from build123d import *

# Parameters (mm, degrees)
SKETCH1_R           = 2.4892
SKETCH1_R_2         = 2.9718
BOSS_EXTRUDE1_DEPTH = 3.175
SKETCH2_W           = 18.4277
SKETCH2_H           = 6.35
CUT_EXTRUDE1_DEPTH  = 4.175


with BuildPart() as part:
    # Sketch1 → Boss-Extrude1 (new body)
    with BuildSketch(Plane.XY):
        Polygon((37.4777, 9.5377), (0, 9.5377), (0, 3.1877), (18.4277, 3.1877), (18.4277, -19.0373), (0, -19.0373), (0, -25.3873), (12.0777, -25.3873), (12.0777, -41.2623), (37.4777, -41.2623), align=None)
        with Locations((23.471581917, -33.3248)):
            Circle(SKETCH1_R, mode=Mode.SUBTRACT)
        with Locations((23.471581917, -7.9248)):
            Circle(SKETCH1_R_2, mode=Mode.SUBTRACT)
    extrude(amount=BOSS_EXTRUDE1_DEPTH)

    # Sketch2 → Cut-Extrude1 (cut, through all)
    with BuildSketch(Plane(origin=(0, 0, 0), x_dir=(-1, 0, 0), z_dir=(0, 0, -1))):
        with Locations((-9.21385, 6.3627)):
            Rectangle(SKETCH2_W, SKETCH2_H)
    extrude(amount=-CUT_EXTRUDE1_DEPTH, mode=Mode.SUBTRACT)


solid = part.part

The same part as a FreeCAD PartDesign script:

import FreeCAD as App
import Part
import Sketcher

V = App.Vector
Q = App.Units.Quantity

doc = App.newDocument("Part")
body = doc.addObject("PartDesign::Body", "Body")

# Sketch on XY plane
sketch1 = body.newObject("Sketcher::SketchObject", "Sketch")
sketch1.AttachmentSupport = (doc.getObject("XY_Plane"), [""])
sketch1.MapMode = "FlatFace"
sketch1.addGeometry(Part.LineSegment(V(37.5, 9.5, 0), V(0, 9.5, 0)), False)
sketch1.addGeometry(Part.LineSegment(V(0, 9.5, 0), V(0, 3.2, 0)), False)
sketch1.addGeometry(Part.LineSegment(V(0, 3.2, 0), V(18.4, 3.2, 0)), False)
sketch1.addGeometry(Part.LineSegment(V(18.4, 3.2, 0), V(18.4, -19, 0)), False)
sketch1.addGeometry(Part.LineSegment(V(18.4, -19, 0), V(0, -19, 0)), False)
sketch1.addGeometry(Part.LineSegment(V(0, -19, 0), V(0, -25.4, 0)), False)
sketch1.addGeometry(Part.LineSegment(V(0, -25.4, 0), V(12.1, -25.4, 0)), False)
sketch1.addGeometry(Part.LineSegment(V(12.1, -25.4, 0), V(12.1, -41.3, 0)), False)
sketch1.addGeometry(Part.LineSegment(V(12.1, -41.3, 0), V(37.5, -41.3, 0)), False)
sketch1.addGeometry(Part.LineSegment(V(37.5, -41.3, 0), V(37.5, 9.5, 0)), False)
sketch1.addGeometry(Part.Circle(V(23.5, -33.3, 0), V(0, 0, 1), 2.5), False)
sketch1.addGeometry(Part.Circle(V(23.5, -7.9, 0), V(0, 0, 1), 3), False)
sketch1.addConstraint(Sketcher.Constraint("Coincident", 0, 2, 1, 1))
sketch1.addConstraint(Sketcher.Constraint("Coincident", 1, 2, 2, 1))
sketch1.addConstraint(Sketcher.Constraint("Coincident", 2, 2, 3, 1))
sketch1.addConstraint(Sketcher.Constraint("Coincident", 3, 2, 4, 1))
sketch1.addConstraint(Sketcher.Constraint("Coincident", 4, 2, 5, 1))
sketch1.addConstraint(Sketcher.Constraint("Coincident", 5, 2, 6, 1))
sketch1.addConstraint(Sketcher.Constraint("Coincident", 6, 2, 7, 1))
sketch1.addConstraint(Sketcher.Constraint("Coincident", 7, 2, 8, 1))
sketch1.addConstraint(Sketcher.Constraint("Coincident", 8, 2, 9, 1))
sketch1.addConstraint(Sketcher.Constraint("Coincident", 9, 2, 0, 1))
sketch1.addConstraint(Sketcher.Constraint("Horizontal", 0))
sketch1.addConstraint(Sketcher.Constraint("Vertical", 1))
sketch1.addConstraint(Sketcher.Constraint("Horizontal", 2))
sketch1.addConstraint(Sketcher.Constraint("Vertical", 3))
sketch1.addConstraint(Sketcher.Constraint("Horizontal", 4))
sketch1.addConstraint(Sketcher.Constraint("Vertical", 5))
sketch1.addConstraint(Sketcher.Constraint("Horizontal", 6))
sketch1.addConstraint(Sketcher.Constraint("Vertical", 7))
sketch1.addConstraint(Sketcher.Constraint("Horizontal", 8))
sketch1.addConstraint(Sketcher.Constraint("Vertical", 9))
sketch1.addConstraint(Sketcher.Constraint("PointOnObject", 0, 2, -2))
sketch1.addConstraint(Sketcher.Constraint("PointOnObject", 4, 2, -2))
sketch1.addConstraint(Sketcher.Constraint("Vertical", 10, 3, 11, 3))
sketch1.addConstraint(Sketcher.Constraint("Equal", 1, 5))
sketch1.addConstraint(Sketcher.Constraint("DistanceX", 8, 1, 8, 2, Q("1 in")))
sketch1.addConstraint(Sketcher.Constraint("DistanceY", 9, 1, 9, 2, Q("2 in")))
sketch1.addConstraint(Sketcher.Constraint("Diameter", 10, Q("0.196 in")))
sketch1.addConstraint(Sketcher.Constraint("Diameter", 11, Q("0.234 in")))
sketch1.addConstraint(Sketcher.Constraint("DistanceY", 10, 3, 11, 3, Q("1 in")))
sketch1.addConstraint(Sketcher.Constraint("DistanceY", 1, 2, 1, 1, Q("0.25 in")))
sketch1.addConstraint(Sketcher.Constraint("DistanceY", 3, 2, 3, 1, Q("0.875 in")))
sketch1.addConstraint(Sketcher.Constraint("DistanceX", 6, 2, 3, 2, Q("0.25 in")))
sketch1.addConstraint(Sketcher.Constraint("DistanceX", 0, 2, 0, 1, Q("1.4755 in")))
sketch1.addConstraint(Sketcher.Constraint("DistanceY", 10, 3, -1, 1, Q("1.312 in")))
sketch1.addConstraint(Sketcher.Constraint("DistanceY", 11, 3, 0, 2, Q("0.6875 in")))
sketch1.addConstraint(Sketcher.Constraint("DistanceX", -1, 1, 10, 3, Q("23.471582 mm")))
pad1 = body.newObject("PartDesign::Pad", "Pad")
pad1.Profile = sketch1
pad1.Length = Q("0.125 in")

# Sketch on XY plane
sketch2 = body.newObject("Sketcher::SketchObject", "Sketch001")
sketch2.AttachmentSupport = (doc.getObject("XY_Plane"), [""])
sketch2.MapMode = "FlatFace"
sketch2.addGeometry(Part.LineSegment(V(18, 10, 0), V(18, 3, 0)), False)
sketch2.addGeometry(Part.LineSegment(V(18, 3, 0), V(0, 3, 0)), False)
sketch2.addGeometry(Part.LineSegment(V(0, 3, 0), V(0, 10, 0)), False)
sketch2.addGeometry(Part.LineSegment(V(0, 10, 0), V(18, 10, 0)), False)
sketch2.addConstraint(Sketcher.Constraint("Coincident", 0, 2, 1, 1))
sketch2.addConstraint(Sketcher.Constraint("Coincident", 1, 2, 2, 1))
sketch2.addConstraint(Sketcher.Constraint("Coincident", 2, 2, 3, 1))
sketch2.addConstraint(Sketcher.Constraint("Coincident", 3, 2, 0, 1))
sketch2.addConstraint(Sketcher.Constraint("Vertical", 0))
sketch2.addConstraint(Sketcher.Constraint("Horizontal", 1))
sketch2.addConstraint(Sketcher.Constraint("Vertical", 2))
sketch2.addConstraint(Sketcher.Constraint("Horizontal", 3))
sketch2.addConstraint(Sketcher.Constraint("PointOnObject", 1, 2, -2))
sketch2.addConstraint(Sketcher.Constraint("DistanceY", 0, 2, 0, 1, Q("0.25 in")))
sketch2.addConstraint(Sketcher.Constraint("DistanceX", 1, 2, 1, 1, Q("0.7255 in")))
sketch2.addConstraint(Sketcher.Constraint("DistanceY", -1, 1, 0, 2, Q("0.1255 in")))
pocket1 = body.newObject("PartDesign::Pocket", "Pocket")
pocket1.Profile = sketch2
pocket1.Type = "ThroughAll"
pocket1.Reversed = True

doc.recompute()
